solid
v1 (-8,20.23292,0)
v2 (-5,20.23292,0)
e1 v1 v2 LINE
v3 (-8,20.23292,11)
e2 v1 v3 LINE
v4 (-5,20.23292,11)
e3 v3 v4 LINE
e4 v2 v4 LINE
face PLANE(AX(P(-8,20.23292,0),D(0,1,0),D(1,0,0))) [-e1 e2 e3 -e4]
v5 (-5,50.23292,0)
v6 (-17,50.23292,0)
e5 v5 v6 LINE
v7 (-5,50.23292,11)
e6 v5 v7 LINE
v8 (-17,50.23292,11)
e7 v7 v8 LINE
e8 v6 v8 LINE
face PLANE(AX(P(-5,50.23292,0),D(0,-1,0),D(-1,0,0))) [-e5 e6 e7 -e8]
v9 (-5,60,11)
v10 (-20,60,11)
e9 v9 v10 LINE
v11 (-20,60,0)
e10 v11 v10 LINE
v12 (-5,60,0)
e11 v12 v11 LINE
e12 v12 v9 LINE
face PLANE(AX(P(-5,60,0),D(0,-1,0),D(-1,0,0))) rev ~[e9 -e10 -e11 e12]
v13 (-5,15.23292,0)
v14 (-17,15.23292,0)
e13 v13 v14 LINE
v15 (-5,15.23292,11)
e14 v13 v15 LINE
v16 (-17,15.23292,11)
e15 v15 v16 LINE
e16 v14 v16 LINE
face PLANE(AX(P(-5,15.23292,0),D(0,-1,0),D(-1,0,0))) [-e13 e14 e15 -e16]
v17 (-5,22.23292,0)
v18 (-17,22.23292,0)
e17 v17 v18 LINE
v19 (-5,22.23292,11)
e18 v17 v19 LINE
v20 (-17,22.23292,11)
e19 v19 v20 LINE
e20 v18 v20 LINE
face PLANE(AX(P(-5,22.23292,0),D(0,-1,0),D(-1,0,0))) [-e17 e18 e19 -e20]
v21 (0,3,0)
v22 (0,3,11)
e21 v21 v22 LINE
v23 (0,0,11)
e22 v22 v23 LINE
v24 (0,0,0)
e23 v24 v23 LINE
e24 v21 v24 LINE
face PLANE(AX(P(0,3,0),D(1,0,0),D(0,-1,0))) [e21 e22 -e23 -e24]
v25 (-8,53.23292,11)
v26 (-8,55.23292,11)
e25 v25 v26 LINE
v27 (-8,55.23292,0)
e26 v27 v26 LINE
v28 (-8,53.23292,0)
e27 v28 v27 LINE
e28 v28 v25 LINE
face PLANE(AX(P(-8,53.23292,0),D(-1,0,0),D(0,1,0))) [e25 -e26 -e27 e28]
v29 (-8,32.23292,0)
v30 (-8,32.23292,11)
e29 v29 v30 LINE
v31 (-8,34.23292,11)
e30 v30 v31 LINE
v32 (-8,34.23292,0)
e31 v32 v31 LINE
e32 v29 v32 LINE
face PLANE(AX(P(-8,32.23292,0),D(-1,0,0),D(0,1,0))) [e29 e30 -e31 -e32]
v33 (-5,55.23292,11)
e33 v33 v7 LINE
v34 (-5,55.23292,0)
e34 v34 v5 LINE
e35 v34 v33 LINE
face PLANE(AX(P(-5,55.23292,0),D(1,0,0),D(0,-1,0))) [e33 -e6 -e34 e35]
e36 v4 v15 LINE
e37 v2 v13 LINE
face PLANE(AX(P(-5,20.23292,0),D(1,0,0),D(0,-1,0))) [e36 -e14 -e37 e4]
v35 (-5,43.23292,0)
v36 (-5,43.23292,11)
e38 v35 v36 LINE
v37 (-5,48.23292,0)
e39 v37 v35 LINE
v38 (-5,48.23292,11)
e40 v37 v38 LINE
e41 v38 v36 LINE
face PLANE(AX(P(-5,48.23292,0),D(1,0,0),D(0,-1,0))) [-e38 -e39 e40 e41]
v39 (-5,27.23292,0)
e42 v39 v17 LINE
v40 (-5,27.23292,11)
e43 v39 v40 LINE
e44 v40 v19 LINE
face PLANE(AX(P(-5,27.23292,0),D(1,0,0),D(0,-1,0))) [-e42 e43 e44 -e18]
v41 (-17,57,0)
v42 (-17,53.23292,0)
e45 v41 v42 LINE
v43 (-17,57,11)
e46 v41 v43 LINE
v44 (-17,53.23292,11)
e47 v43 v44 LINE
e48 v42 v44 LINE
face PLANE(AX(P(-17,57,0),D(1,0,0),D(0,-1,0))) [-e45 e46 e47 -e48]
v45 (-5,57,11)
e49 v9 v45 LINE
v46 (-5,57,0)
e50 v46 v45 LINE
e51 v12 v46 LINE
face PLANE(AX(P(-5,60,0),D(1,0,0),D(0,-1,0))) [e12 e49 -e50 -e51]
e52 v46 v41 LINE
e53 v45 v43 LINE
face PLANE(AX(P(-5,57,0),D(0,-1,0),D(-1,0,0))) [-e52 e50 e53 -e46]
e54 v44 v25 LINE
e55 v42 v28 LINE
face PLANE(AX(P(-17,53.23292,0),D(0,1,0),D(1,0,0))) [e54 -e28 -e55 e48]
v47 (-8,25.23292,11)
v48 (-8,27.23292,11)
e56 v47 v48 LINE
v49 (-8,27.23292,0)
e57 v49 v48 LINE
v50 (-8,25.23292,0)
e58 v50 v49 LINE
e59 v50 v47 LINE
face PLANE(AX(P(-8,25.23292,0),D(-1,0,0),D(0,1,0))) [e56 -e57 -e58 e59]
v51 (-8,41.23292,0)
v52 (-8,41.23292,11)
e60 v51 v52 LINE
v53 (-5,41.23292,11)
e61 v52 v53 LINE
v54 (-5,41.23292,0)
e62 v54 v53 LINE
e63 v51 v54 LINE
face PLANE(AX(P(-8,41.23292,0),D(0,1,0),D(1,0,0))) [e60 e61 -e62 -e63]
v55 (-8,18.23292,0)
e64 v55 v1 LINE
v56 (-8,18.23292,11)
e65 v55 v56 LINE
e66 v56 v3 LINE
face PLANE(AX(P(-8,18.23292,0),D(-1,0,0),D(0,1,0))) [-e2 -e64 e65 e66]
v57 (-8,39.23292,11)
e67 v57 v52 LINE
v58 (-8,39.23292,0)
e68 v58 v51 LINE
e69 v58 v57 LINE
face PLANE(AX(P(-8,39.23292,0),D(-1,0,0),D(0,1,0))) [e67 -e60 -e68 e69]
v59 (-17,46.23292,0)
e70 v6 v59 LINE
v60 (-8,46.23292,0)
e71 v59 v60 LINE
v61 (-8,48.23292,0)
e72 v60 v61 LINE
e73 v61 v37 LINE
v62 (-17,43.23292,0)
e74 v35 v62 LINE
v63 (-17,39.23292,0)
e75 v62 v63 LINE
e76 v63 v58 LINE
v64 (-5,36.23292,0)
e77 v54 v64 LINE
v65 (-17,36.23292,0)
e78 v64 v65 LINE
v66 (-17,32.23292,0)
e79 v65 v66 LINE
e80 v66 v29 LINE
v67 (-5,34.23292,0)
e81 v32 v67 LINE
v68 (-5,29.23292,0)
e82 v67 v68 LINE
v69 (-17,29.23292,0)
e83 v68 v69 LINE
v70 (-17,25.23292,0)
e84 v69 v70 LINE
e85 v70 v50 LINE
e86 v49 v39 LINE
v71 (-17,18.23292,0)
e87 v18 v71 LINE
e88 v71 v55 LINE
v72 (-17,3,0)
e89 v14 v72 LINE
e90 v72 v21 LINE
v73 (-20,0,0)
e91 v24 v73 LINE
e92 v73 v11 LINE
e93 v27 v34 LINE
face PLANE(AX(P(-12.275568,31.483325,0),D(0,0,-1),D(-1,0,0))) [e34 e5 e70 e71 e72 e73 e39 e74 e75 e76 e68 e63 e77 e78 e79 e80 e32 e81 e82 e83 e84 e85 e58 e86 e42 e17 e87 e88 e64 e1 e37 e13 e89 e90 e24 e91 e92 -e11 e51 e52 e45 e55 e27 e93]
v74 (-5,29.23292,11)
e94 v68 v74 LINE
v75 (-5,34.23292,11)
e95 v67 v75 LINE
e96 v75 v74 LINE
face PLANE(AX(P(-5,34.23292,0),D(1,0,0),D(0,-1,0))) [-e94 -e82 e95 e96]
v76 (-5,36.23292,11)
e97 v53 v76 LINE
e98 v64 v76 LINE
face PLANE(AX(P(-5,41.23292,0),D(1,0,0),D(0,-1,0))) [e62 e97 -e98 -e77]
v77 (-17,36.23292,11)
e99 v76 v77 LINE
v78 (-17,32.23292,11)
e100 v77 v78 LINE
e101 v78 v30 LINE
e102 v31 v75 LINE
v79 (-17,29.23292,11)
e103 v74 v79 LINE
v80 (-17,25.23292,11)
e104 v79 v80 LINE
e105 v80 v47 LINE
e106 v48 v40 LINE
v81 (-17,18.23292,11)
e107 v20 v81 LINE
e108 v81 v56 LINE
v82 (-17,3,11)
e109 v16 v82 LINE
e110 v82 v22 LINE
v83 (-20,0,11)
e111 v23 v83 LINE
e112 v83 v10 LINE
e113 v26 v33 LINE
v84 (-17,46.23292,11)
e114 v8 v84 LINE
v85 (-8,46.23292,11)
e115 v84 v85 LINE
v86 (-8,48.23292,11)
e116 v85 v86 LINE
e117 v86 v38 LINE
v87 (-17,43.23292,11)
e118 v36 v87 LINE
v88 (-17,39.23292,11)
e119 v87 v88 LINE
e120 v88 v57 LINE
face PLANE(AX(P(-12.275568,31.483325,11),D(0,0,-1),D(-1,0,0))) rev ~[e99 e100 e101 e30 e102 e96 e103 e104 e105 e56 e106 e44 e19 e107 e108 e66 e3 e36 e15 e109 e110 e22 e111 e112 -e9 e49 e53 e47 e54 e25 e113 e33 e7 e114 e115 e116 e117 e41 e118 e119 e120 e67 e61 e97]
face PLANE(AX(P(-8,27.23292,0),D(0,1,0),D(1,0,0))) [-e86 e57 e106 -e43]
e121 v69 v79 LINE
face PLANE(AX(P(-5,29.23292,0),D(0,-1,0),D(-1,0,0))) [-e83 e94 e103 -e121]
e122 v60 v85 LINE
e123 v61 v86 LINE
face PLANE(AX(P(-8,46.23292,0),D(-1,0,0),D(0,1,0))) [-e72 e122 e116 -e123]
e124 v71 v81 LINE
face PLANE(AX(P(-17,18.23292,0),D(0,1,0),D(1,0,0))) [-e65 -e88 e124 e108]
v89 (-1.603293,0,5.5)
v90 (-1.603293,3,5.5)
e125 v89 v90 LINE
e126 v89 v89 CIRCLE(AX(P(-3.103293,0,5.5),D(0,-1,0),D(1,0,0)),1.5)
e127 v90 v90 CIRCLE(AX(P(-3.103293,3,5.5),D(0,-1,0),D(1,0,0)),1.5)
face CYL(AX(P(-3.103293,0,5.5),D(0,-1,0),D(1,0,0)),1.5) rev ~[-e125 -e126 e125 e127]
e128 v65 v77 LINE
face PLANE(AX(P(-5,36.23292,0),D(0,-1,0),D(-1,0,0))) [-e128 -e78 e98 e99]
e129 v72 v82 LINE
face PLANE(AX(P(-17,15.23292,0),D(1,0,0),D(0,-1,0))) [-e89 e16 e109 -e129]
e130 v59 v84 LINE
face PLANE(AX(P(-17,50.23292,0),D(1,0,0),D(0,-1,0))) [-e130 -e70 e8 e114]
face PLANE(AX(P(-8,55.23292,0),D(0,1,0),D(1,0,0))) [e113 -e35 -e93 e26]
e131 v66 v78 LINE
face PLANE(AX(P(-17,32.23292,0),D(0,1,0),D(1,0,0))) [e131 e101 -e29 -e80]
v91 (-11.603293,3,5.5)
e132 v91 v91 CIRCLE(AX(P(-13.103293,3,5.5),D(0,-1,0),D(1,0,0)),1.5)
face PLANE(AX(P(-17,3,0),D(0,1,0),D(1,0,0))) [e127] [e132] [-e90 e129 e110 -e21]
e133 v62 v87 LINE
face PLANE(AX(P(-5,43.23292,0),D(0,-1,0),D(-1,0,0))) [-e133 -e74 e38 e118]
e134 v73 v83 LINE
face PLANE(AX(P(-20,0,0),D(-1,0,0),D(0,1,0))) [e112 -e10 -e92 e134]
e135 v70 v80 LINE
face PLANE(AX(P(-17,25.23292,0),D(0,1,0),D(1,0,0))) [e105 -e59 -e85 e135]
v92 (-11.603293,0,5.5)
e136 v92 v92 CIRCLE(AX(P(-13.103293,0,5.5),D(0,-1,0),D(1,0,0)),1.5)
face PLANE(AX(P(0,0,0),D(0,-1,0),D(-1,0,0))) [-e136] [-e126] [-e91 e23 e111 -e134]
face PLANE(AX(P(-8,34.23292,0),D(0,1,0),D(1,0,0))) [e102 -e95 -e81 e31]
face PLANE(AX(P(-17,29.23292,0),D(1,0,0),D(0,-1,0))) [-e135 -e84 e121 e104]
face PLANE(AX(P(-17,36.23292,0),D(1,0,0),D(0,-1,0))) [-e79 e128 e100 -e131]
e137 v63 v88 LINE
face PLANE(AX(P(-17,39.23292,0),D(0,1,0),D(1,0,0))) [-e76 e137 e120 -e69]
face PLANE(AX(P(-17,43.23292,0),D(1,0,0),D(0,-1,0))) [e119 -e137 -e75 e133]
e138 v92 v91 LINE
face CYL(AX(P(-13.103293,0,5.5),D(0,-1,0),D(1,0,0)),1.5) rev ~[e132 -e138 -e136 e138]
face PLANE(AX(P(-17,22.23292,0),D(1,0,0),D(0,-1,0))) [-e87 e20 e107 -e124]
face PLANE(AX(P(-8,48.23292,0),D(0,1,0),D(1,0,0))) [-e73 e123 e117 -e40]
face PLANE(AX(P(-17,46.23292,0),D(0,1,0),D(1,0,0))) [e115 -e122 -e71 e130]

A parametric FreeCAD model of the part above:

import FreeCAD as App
import Part
import Sketcher

V = App.Vector
Q = App.Units.Quantity


def add_polygon(sketch, points):
    """Adds a closed chain of lines whose ends are joined by coincident constraints."""
    first, n = sketch.GeometryCount, len(points)
    for a, b in zip(points, points[1:] + points[:1]):
        sketch.addGeometry(Part.LineSegment(App.Vector(*a, 0), App.Vector(*b, 0)), False)
    for i in range(n):
        sketch.addConstraint(Sketcher.Constraint("Coincident", first + i, 2, first + (i + 1) % n, 1))

doc = App.newDocument("Part")
body = doc.addObject("PartDesign::Body", "Body")

sketch1 = body.newObject("Sketcher::SketchObject", "Sketch")
sketch1.AttachmentSupport = (doc.getObject("XY_Plane"), [""])
sketch1.MapMode = "FlatFace"
add_polygon(sketch1, [(-20, 0), (0, 0), (0, 3), (-17, 3), (-17, 15.2), (-5, 15.2), (-5, 20.2), (-8, 20.2), (-8, 18.2), (-17, 18.2), (-17, 22.2), (-5, 22.2), (-5, 27.2), (-8, 27.2), (-8, 25.2), (-17, 25.2), (-17, 29.2), (-5, 29.2), (-5, 34.2), (-8, 34.2), (-8, 32.2), (-17, 32.2), (-17, 36.2), (-5, 36.2), (-5, 41.2), (-8, 41.2), (-8, 39.2), (-17, 39.2), (-17, 43.2), (-5, 43.2), (-5, 48.2), (-8, 48.2), (-8, 46.2), (-17, 46.2), (-17, 50.2), (-5, 50.2), (-5, 55.2), (-8, 55.2), (-8, 53.2), (-17, 53.2), (-17, 57), (-5, 57), (-5, 60), (-20, 60)])
sketch1.addConstraint(Sketcher.Constraint("Horizontal", 0))
sketch1.addConstraint(Sketcher.Constraint("Vertical", 1))
sketch1.addConstraint(Sketcher.Constraint("Horizontal", 2))
sketch1.addConstraint(Sketcher.Constraint("Vertical", 3))
sketch1.addConstraint(Sketcher.Constraint("Horizontal", 4))
sketch1.addConstraint(Sketcher.Constraint("Vertical", 5))
sketch1.addConstraint(Sketcher.Constraint("Horizontal", 6))
sketch1.addConstraint(Sketcher.Constraint("Vertical", 7))
sketch1.addConstraint(Sketcher.Constraint("Horizontal", 8))
sketch1.addConstraint(Sketcher.Constraint("Vertical", 9))
sketch1.addConstraint(Sketcher.Constraint("Horizontal", 10))
sketch1.addConstraint(Sketcher.Constraint("Vertical", 11))
sketch1.addConstraint(Sketcher.Constraint("Horizontal", 12))
sketch1.addConstraint(Sketcher.Constraint("Vertical", 13))
sketch1.addConstraint(Sketcher.Constraint("Horizontal", 14))
sketch1.addConstraint(Sketcher.Constraint("Vertical", 15))
sketch1.addConstraint(Sketcher.Constraint("Horizontal", 16))
sketch1.addConstraint(Sketcher.Constraint("Vertical", 17))
sketch1.addConstraint(Sketcher.Constraint("Horizontal", 18))
sketch1.addConstraint(Sketcher.Constraint("Vertical", 19))
sketch1.addConstraint(Sketcher.Constraint("Horizontal", 20))
sketch1.addConstraint(Sketcher.Constraint("Vertical", 21))
sketch1.addConstraint(Sketcher.Constraint("Horizontal", 22))
sketch1.addConstraint(Sketcher.Constraint("Vertical", 23))
sketch1.addConstraint(Sketcher.Constraint("Horizontal", 24))
sketch1.addConstraint(Sketcher.Constraint("Vertical", 25))
sketch1.addConstraint(Sketcher.Constraint("Horizontal", 26))
sketch1.addConstraint(Sketcher.Constraint("Vertical", 27))
sketch1.addConstraint(Sketcher.Constraint("Horizontal", 28))
sketch1.addConstraint(Sketcher.Constraint("Vertical", 29))
sketch1.addConstraint(Sketcher.Constraint("Horizontal", 30))
sketch1.addConstraint(Sketcher.Constraint("Vertical", 31))
sketch1.addConstraint(Sketcher.Constraint("Horizontal", 32))
sketch1.addConstraint(Sketcher.Constraint("Vertical", 33))
sketch1.addConstraint(Sketcher.Constraint("Horizontal", 34))
sketch1.addConstraint(Sketcher.Constraint("Vertical", 35))
sketch1.addConstraint(Sketcher.Constraint("Horizontal", 36))
sketch1.addConstraint(Sketcher.Constraint("Vertical", 37))
sketch1.addConstraint(Sketcher.Constraint("Horizontal", 38))
sketch1.addConstraint(Sketcher.Constraint("Vertical", 39))
sketch1.addConstraint(Sketcher.Constraint("Horizontal", 40))
sketch1.addConstraint(Sketcher.Constraint("Vertical", 41))
sketch1.addConstraint(Sketcher.Constraint("Horizontal", 42))
sketch1.addConstraint(Sketcher.Constraint("Vertical", 43))
sketch1.addConstraint(Sketcher.Constraint("Coincident", 0, 2, -1, 1))
sketch1.addConstraint(Sketcher.Constraint("Vertical", 3, 2, 8, 2))
sketch1.addConstraint(Sketcher.Constraint("Vertical", 5, 2, 10, 2))
sketch1.addConstraint(Sketcher.Constraint("Vertical", 7, 2, 12, 2))
sketch1.addConstraint(Sketcher.Constraint("Vertical", 9, 2, 14, 2))
sketch1.addConstraint(Sketcher.Constraint("Vertical", 11, 2, 16, 2))
sketch1.addConstraint(Sketcher.Constraint("Vertical", 13, 2, 18, 2))
sketch1.addConstraint(Sketcher.Constraint("Vertical", 15, 2, 20, 2))
sketch1.addConstraint(Sketcher.Constraint("Vertical", 17, 2, 22, 2))
sketch1.addConstraint(Sketcher.Constraint("Vertical", 19, 2, 24, 2))
sketch1.addConstraint(Sketcher.Constraint("Vertical", 21, 2, 26, 2))
sketch1.addConstraint(Sketcher.Constraint("Vertical", 23, 2, 28, 2))
sketch1.addConstraint(Sketcher.Constraint("Vertical", 25, 2, 30, 2))
sketch1.addConstraint(Sketcher.Constraint("Vertical", 27, 2, 32, 2))
sketch1.addConstraint(Sketcher.Constraint("Vertical", 29, 2, 34, 2))
sketch1.addConstraint(Sketcher.Constraint("Vertical", 31, 2, 36, 2))
sketch1.addConstraint(Sketcher.Constraint("Vertical", 33, 2, 38, 2))
sketch1.addConstraint(Sketcher.Constraint("Vertical", 35, 2, 40, 2))
sketch1.addConstraint(Sketcher.Constraint("Equal", 36, 1))
sketch1.addConstraint(Sketcher.Constraint("Equal", 5, 11))
sketch1.addConstraint(Sketcher.Constraint("Equal", 7, 13))
sketch1.addConstraint(Sketcher.Constraint("Equal", 9, 15))
sketch1.addConstraint(Sketcher.Constraint("Equal", 11, 17))
sketch1.addConstraint(Sketcher.Constraint("Equal", 13, 19))
sketch1.addConstraint(Sketcher.Constraint("Equal", 15, 21))
sketch1.addConstraint(Sketcher.Constraint("Equal", 17, 23))
sketch1.addConstraint(Sketcher.Constraint("Equal", 19, 25))
sketch1.addConstraint(Sketcher.Constraint("Equal", 21, 27))
sketch1.addConstraint(Sketcher.Constraint("Equal", 23, 29))
sketch1.addConstraint(Sketcher.Constraint("Equal", 25, 31))
sketch1.addConstraint(Sketcher.Constraint("Equal", 27, 33))
sketch1.addConstraint(Sketcher.Constraint("Equal", 29, 35))
sketch1.addConstraint(Sketcher.Constraint("Equal", 31, 37))
sketch1.addConstraint(Sketcher.Constraint("Equal", 1, 41))
sketch1.addConstraint(Sketcher.Constraint("DistanceX", 0, 1, 0, 2, Q("20 mm")))
sketch1.addConstraint(Sketcher.Constraint("DistanceX", 2, 2, 2, 1, Q("17 mm")))
sketch1.addConstraint(Sketcher.Constraint("DistanceX", 4, 1, 4, 2, Q("12 mm")))
sketch1.addConstraint(Sketcher.Constraint("DistanceX", 6, 2, 6, 1, Q("3 mm")))
sketch1.addConstraint(Sketcher.Constraint("DistanceY", 5, 1, 5, 2, Q("5 mm")))
sketch1.addConstraint(Sketcher.Constraint("DistanceY", 7, 2, 7, 1, Q("2 mm")))
sketch1.addConstraint(Sketcher.Constraint("DistanceY", 9, 1, 9, 2, Q("4 mm")))
sketch1.addConstraint(Sketcher.Constraint("DistanceY", 43, 2, 43, 1, Q("60 mm")))
sketch1.addConstraint(Sketcher.Constraint("DistanceY", 3, 1, 3, 2, Q("12.23292 mm")))
pad1 = body.newObject("PartDesign::Pad", "Pad")
pad1.Profile = sketch1
pad1.Length = 11

sketch2 = body.newObject("Sketcher::SketchObject", "Sketch001")
sketch2.AttachmentSupport = (doc.getObject("XZ_Plane"), [""])
sketch2.MapMode = "FlatFace"
sketch2.addGeometry(Part.Circle(V(-3.1, 5.5, 0), V(0, 0, 1), 1.5), False)
sketch2.addGeometry(Part.Circle(V(-13.1, 5.5, 0), V(0, 0, 1), 1.5), False)
sketch2.addConstraint(Sketcher.Constraint("Equal", 0, 1))
sketch2.addConstraint(Sketcher.Constraint("Horizontal", 0, 3, 1, 3))
sketch2.addConstraint(Sketcher.Constraint("Diameter", 0, Q("3 mm")))
sketch2.addConstraint(Sketcher.Constraint("DistanceX", 1, 3, 0, 3, Q("10 mm")))
sketch2.addConstraint(Sketcher.Constraint("DistanceY", -1, 1, 0, 3, Q("5.5 mm")))
sketch2.addConstraint(Sketcher.Constraint("DistanceX", 0, 3, -1, 1, Q("3.103293 mm")))
pocket1 = body.newObject("PartDesign::Pocket", "Pocket")
pocket1.Profile = sketch2
pocket1.Length = 11

doc.recompute()
